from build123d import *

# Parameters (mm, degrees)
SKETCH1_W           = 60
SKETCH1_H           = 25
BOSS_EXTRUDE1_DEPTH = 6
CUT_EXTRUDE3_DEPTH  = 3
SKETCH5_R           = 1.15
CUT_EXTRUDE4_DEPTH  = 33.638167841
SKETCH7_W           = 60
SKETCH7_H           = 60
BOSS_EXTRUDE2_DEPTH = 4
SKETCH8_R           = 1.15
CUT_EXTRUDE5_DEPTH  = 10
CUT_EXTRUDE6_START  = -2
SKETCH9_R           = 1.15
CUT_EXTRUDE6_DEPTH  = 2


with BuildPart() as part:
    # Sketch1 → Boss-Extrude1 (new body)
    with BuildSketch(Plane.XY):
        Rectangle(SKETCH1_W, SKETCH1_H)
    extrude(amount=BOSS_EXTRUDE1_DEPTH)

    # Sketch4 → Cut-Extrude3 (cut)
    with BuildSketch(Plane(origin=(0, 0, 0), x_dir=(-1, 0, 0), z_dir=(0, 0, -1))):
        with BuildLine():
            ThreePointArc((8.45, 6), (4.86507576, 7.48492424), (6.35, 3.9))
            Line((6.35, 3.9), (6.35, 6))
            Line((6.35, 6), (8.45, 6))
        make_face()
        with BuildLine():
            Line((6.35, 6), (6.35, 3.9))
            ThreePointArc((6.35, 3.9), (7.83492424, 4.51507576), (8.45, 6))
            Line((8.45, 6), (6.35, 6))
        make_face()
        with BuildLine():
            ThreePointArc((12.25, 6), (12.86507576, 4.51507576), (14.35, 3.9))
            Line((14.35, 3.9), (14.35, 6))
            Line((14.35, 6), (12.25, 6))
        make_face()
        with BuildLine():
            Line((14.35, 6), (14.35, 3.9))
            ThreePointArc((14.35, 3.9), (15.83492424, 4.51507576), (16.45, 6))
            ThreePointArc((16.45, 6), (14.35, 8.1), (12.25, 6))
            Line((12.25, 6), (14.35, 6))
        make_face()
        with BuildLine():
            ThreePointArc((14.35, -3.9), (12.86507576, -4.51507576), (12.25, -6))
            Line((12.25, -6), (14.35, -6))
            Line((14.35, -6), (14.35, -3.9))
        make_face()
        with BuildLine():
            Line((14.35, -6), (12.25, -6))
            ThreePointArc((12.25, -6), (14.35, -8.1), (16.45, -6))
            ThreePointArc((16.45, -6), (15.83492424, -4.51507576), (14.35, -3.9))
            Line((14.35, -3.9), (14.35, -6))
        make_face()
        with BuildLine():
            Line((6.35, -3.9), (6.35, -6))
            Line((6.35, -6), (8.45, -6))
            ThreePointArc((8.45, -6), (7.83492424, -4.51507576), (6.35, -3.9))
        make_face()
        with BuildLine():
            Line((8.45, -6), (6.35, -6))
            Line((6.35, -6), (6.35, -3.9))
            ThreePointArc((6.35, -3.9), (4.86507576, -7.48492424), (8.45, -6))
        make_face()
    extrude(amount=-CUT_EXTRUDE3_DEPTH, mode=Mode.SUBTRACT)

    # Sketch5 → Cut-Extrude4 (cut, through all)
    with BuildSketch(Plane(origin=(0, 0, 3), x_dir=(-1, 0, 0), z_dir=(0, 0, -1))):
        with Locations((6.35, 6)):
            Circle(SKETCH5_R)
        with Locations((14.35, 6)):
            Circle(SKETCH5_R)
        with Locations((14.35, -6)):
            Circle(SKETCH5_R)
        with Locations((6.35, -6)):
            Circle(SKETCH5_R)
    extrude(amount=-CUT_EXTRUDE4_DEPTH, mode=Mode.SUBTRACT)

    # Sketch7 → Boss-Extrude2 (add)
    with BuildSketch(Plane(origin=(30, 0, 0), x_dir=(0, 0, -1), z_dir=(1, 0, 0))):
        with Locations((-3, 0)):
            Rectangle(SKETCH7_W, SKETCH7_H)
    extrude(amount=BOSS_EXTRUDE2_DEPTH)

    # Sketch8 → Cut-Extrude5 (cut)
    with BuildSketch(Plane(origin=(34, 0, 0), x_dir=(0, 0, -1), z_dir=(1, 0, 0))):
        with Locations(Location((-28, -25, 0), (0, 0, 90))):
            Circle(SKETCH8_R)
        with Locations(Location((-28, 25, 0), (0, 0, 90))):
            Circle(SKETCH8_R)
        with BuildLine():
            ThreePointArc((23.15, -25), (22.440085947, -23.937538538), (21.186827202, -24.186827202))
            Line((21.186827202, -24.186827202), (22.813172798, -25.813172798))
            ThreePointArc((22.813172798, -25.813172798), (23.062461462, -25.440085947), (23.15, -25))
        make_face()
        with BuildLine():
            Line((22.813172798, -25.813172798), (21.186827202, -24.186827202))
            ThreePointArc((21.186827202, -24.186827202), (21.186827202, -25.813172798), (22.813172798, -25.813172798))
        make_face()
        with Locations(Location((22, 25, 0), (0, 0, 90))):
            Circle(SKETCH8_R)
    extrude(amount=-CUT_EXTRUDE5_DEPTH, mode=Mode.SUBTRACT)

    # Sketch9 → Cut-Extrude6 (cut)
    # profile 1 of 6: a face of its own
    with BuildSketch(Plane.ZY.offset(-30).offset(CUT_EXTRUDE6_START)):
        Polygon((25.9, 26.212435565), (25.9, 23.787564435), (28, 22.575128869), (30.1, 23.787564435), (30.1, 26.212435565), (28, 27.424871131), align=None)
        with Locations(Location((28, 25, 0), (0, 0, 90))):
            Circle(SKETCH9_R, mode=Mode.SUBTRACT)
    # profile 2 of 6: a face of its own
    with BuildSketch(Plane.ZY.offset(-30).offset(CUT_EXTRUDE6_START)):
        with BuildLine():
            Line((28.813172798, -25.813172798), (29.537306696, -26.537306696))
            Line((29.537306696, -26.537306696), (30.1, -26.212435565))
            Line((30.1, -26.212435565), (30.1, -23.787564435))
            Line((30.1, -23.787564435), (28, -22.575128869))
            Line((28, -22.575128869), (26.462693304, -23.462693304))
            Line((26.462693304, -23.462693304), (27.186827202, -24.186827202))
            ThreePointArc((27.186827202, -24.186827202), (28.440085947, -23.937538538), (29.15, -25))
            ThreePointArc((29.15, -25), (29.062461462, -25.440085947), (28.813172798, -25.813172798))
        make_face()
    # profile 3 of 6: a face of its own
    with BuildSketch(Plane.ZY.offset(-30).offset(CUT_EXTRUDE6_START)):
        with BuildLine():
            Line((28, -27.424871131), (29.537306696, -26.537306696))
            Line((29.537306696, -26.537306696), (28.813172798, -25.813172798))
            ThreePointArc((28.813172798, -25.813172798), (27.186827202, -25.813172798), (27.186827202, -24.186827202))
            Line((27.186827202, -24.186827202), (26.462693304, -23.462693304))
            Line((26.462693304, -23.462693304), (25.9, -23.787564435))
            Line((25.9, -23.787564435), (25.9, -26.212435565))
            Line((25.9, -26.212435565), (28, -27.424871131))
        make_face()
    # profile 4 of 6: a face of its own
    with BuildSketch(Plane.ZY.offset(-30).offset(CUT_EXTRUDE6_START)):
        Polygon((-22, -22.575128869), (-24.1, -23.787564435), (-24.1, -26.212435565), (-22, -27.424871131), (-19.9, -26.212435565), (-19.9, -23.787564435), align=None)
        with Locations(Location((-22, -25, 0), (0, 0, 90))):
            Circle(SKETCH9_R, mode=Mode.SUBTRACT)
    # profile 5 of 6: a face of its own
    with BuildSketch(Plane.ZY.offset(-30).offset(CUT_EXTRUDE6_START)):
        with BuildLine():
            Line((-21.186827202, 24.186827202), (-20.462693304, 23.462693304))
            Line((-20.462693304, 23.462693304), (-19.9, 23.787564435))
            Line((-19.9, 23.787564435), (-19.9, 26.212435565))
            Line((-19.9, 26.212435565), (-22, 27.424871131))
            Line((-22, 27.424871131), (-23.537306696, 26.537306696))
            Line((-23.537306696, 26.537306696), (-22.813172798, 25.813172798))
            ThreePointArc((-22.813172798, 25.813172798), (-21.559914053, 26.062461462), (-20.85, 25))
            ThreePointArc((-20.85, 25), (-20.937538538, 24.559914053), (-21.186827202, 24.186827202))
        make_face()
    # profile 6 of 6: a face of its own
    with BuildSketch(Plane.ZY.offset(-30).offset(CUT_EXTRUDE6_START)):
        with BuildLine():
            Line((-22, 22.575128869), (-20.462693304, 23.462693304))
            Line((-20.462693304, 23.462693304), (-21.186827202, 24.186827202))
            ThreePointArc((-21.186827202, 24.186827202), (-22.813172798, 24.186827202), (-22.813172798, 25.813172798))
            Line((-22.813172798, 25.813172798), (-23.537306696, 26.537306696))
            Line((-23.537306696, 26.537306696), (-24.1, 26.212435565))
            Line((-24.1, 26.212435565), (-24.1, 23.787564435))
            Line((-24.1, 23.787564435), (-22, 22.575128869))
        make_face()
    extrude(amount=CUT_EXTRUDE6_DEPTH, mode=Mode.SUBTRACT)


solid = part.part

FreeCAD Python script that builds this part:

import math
import FreeCAD as App
import Part
import Sketcher
from FreeCAD import Vector
Q = App.Units.Quantity

doc = App.newDocument("Part")
body = doc.addObject("PartDesign::Body", "Body")

# Sketch on XY plane
sketch1 = body.newObject("Sketcher::SketchObject", "Sketch")
sketch1.AttachmentSupport = (doc.getObject("XY_Plane"), [""])
sketch1.MapMode = "FlatFace"
sketch1.addGeometry([
    Part.LineSegment(Vector(-30, 12, 0), Vector(-30, -12, 0)),
    Part.LineSegment(Vector(-30, -12, 0), Vector(30, -12, 0)),
    Part.LineSegment(Vector(30, -12, 0), Vector(30, 12, 0)),
    Part.LineSegment(Vector(30, 12, 0), Vector(-30, 12, 0)),
], False)
sketch1.addConstraint([
    Sketcher.Constraint("Coincident", 0, 2, 1, 1),
    Sketcher.Constraint("Coincident", 1, 2, 2, 1),
    Sketcher.Constraint("Coincident", 2, 2, 3, 1),
    Sketcher.Constraint("Coincident", 3, 2, 0, 1),
    Sketcher.Constraint("Vertical", 0),
    Sketcher.Constraint("Horizontal", 1),
    Sketcher.Constraint("Vertical", 2),
    Sketcher.Constraint("Horizontal", 3),
    Sketcher.Constraint("Symmetric", 0, 2, 2, 2, -1, 1),
    Sketcher.Constraint("DistanceX", 1, 1, 1, 2, Q("60 mm")),
    Sketcher.Constraint("DistanceY", 0, 2, 0, 1, Q("25 mm")),
])
pad1 = body.newObject("PartDesign::Pad", "Pad")
pad1.Profile = sketch1
pad1.Length = 6

# Sketch on XY plane
sketch2 = body.newObject("Sketcher::SketchObject", "Sketch001")
sketch2.AttachmentSupport = (doc.getObject("XY_Plane"), [""])
sketch2.MapMode = "FlatFace"
sketch2.addGeometry([
    Part.ArcOfCircle(Part.Circle(Vector(-6.3, 6, 0), Vector(0, 0, 1), 2.1), math.radians(-90), math.radians(180)),  # 0
    Part.ArcOfCircle(Part.Circle(Vector(-6.3, 6, 0), Vector(0, 0, 1), 2.1), math.radians(-180), math.radians(-90)),  # 1
    Part.ArcOfCircle(Part.Circle(Vector(-14.4, 6, 0), Vector(0, 0, 1), 2.1), math.radians(-90), math.radians(0)),  # 2
    Part.ArcOfCircle(Part.Circle(Vector(-14.3, 6, 0), Vector(0, 0, 1), 2.1), math.radians(-180), math.radians(-90)),  # 3
    Part.ArcOfCircle(Part.Circle(Vector(-14.3, 6, 0), Vector(0, 0, 1), 2.1), math.radians(0), math.radians(180)),  # 4
    Part.ArcOfCircle(Part.Circle(Vector(-14.4, -6, 0), Vector(0, 0, 1), 2.1), math.radians(0), math.radians(90)),  # 5
    Part.ArcOfCircle(Part.Circle(Vector(-14.3, -6, 0), Vector(0, 0, 1), 2.1), math.radians(180), math.radians(360)),  # 6
    Part.ArcOfCircle(Part.Circle(Vector(-14.3, -6, 0), Vector(0, 0, 1), 2.1), math.radians(90), math.radians(180)),  # 7
    Part.ArcOfCircle(Part.Circle(Vector(-6.3, -6, 0), Vector(0, 0, 1), 2.1), math.radians(90), math.radians(180)),  # 8
    Part.ArcOfCircle(Part.Circle(Vector(-6.3, -6, 0), Vector(0, 0, 1), 2.1), math.radians(180), math.radians(450)),  # 9
], False)
sketch2.addConstraint([
    Sketcher.Constraint("Tangent", 0, 1, 1, 2),
    Sketcher.Constraint("Coincident", 1, 1, 0, 2),
    Sketcher.Constraint("Tangent", 2, 1, 3, 2),
    Sketcher.Constraint("Tangent", 3, 1, 4, 2),
    Sketcher.Constraint("Tangent", 4, 1, 2, 2),
    Sketcher.Constraint("Tangent", 5, 1, 6, 2),
    Sketcher.Constraint("Tangent", 6, 1, 7, 2),
    Sketcher.Constraint("Tangent", 7, 1, 5, 2),
    Sketcher.Constraint("Tangent", 8, 1, 9, 2),
    Sketcher.Constraint("Coincident", 9, 1, 8, 2),
    Sketcher.Constraint("Equal", 1, 2),
    Sketcher.Constraint("Equal", 4, 5),
    Sketcher.Constraint("Equal", 7, 8),
    Sketcher.Constraint("Symmetric", 2, 3, 5, 3, -1),
    Sketcher.Constraint("Symmetric", 0, 3, 8, 3, -1),
    Sketcher.Constraint("Horizontal", 1, 3, 2, 3),
    Sketcher.Constraint("Horizontal", 4, 3, 1, 1),
    Sketcher.Constraint("Horizontal", 1, 1, 3, 1),
    Sketcher.Constraint("Horizontal", 3, 1, 4, 1),
    Sketcher.Constraint("Horizontal", 9, 3, 5, 1),
    Sketcher.Constraint("Horizontal", 5, 1, 6, 1),
    Sketcher.Constraint("Horizontal", 6, 1, 9, 1),
    Sketcher.Constraint("Vertical", 9, 3, 0, 1),
    Sketcher.Constraint("Vertical", 7, 3, 2, 1),
    Sketcher.Constraint("Vertical", 2, 1, 7, 1),
    Sketcher.Constraint("Vertical", 0, 1, 8, 1),
    Sketcher.Constraint("Radius", 0, Q("2.1 mm")),
    Sketcher.Constraint("DistanceY", -1, 1, 0, 3, Q("6 mm")),
    Sketcher.Constraint("DistanceX", 2, 3, 0, 3, Q("8 mm")),
    Sketcher.Constraint("DistanceX", 0, 3, -1, 1, Q("6.35 mm")),
])
pocket1 = body.newObject("PartDesign::Pocket", "Pocket")
pocket1.Profile = sketch2
pocket1.Length = 3
pocket1.Reversed = True

# Sketch on XY plane
sketch3 = body.newObject("Sketcher::SketchObject", "Sketch002")
sketch3.AttachmentSupport = (doc.getObject("XY_Plane"), [""])
sketch3.MapMode = "FlatFace"
sketch3.AttachmentOffset = App.Placement(Vector(0, 0, 3), App.Rotation())
sketch3.addGeometry([
    Part.Circle(Vector(-6.3, 6, 0), Vector(0, 0, 1), 1.1),
    Part.Circle(Vector(-14.3, 6, 0), Vector(0, 0, 1), 1.1),
    Part.Circle(Vector(-14.3, -6, 0), Vector(0, 0, 1), 1.1),
    Part.Circle(Vector(-6.3, -6, 0), Vector(0, 0, 1), 1.1),
], False)
sketch3.addConstraint([
    Sketcher.Constraint("Equal", 0, 1),
    Sketcher.Constraint("Equal", 1, 2),
    Sketcher.Constraint("Equal", 2, 3),
    Sketcher.Constraint("Symmetric", 1, 3, 2, 3, -1),
    Sketcher.Constraint("Symmetric", 0, 3, 3, 3, -1),
    Sketcher.Constraint("Horizontal", 0, 3, 1, 3),
    Sketcher.Constraint("Diameter", 0, Q("2.3 mm")),
    Sketcher.Constraint("DistanceY", -1, 1, 0, 3, Q("6 mm")),
    Sketcher.Constraint("DistanceX", 1, 3, 0, 3, Q("8 mm")),
    Sketcher.Constraint("DistanceX", 0, 3, -1, 1, Q("6.35 mm")),
])
pocket2 = body.newObject("PartDesign::Pocket", "Pocket001")
pocket2.Profile = sketch3
pocket2.Type = "ThroughAll"
pocket2.Reversed = True

# Sketch on YZ plane
sketch4 = body.newObject("Sketcher::SketchObject", "Sketch003")
sketch4.AttachmentSupport = (doc.getObject("YZ_Plane"), [""])
sketch4.MapMode = "FlatFace"
sketch4.AttachmentOffset = App.Placement(Vector(0, 0, 30), App.Rotation())
sketch4.addGeometry([
    Part.LineSegment(Vector(30, 33, 0), Vector(-30, 33, 0)),
    Part.LineSegment(Vector(-30, 33, 0), Vector(-30, -27, 0)),
    Part.LineSegment(Vector(-30, -27, 0), Vector(30, -27, 0)),
    Part.LineSegment(Vector(30, -27, 0), Vector(30, 33, 0)),
], False)
sketch4.addConstraint([
    Sketcher.Constraint("Coincident", 0, 2, 1, 1),
    Sketcher.Constraint("Coincident", 1, 2, 2, 1),
    Sketcher.Constraint("Coincident", 2, 2, 3, 1),
    Sketcher.Constraint("Coincident", 3, 2, 0, 1),
    Sketcher.Constraint("Horizontal", 0),
    Sketcher.Constraint("Vertical", 1),
    Sketcher.Constraint("Horizontal", 2),
    Sketcher.Constraint("Vertical", 3),
    Sketcher.Constraint("Equal", 2, 1),
    Sketcher.Constraint("DistanceX", 0, 2, 0, 1, Q("60 mm")),
    Sketcher.Constraint("DistanceX", 0, 2, -1, 1, Q("30 mm")),
    Sketcher.Constraint("DistanceY", -1, 1, 0, 2, Q("33 mm")),
])
pad2 = body.newObject("PartDesign::Pad", "Pad001")
pad2.Profile = sketch4
pad2.Length = 4

# Sketch on YZ plane
sketch5 = body.newObject("Sketcher::SketchObject", "Sketch004")
sketch5.AttachmentSupport = (doc.getObject("YZ_Plane"), [""])
sketch5.MapMode = "FlatFace"
sketch5.AttachmentOffset = App.Placement(Vector(0, 0, 34), App.Rotation())
sketch5.addGeometry([
    Part.Circle(Vector(-25, 28, 0), Vector(0, 0, 1), 1.1),  # 0
    Part.Circle(Vector(25, 28, 0), Vector(0, 0, 1), 1.1),  # 1
    Part.ArcOfCircle(Part.Circle(Vector(-25, -22, 0), Vector(0, 0, 1), 1.1), math.radians(-90), math.radians(45)),  # 2
    Part.ArcOfCircle(Part.Circle(Vector(-25, -22, 0), Vector(0, 0, 1), 1.1), math.radians(45), math.radians(225)),  # 3
    Part.ArcOfCircle(Part.Circle(Vector(-25, -22, 0), Vector(0, 0, 1), 1.2), math.radians(-135), math.radians(-90)),  # 4
    Part.Circle(Vector(25, -22, 0), Vector(0, 0, 1), 1.1),  # 5
], False)
sketch5.addConstraint([
    Sketcher.Constraint("Tangent", 2, 2, 3, 1),
    Sketcher.Constraint("Tangent", 3, 2, 4, 1),
    Sketcher.Constraint("Tangent", 4, 2, 2, 1),
    Sketcher.Constraint("Equal", 0, 1),
    Sketcher.Constraint("Equal", 1, 2),
    Sketcher.Constraint("Equal", 4, 5),
    Sketcher.Constraint("Symmetric", 0, 3, 1, 3, -2),
    Sketcher.Constraint("Symmetric", 2, 3, 5, 3, -2),
    Sketcher.Constraint("Vertical", 0, 3, 2, 3),
    Sketcher.Constraint("Vertical", 3, 3, 4, 2),
    Sketcher.Constraint("Diameter", 0, Q("2.3 mm")),
    Sketcher.Constraint("DistanceX", 0, 3, -1, 1, Q("25 mm")),
    Sketcher.Constraint("DistanceY", -1, 1, 0, 3, Q("28 mm")),
    Sketcher.Constraint("DistanceY", 2, 3, -1, 1, Q("22 mm")),
    Sketcher.Constraint("DistanceX", 2, 2, -1, 1, Q("24.186827 mm")),
    Sketcher.Constraint("DistanceX", 3, 2, -1, 1, Q("25.813173 mm")),
])
pocket3 = body.newObject("PartDesign::Pocket", "Pocket002")
pocket3.Profile = sketch5
pocket3.Length = 10

# Sketch on YZ plane
sketch6 = body.newObject("Sketcher::SketchObject", "Sketch005")
sketch6.AttachmentSupport = (doc.getObject("YZ_Plane"), [""])
sketch6.MapMode = "FlatFace"
sketch6.AttachmentOffset = App.Placement(Vector(0, 0, 32), App.Rotation())
sketch6.addGeometry([
    Part.LineSegment(Vector(26.2, 25.9, 0), Vector(23.8, 25.9, 0)),  # 0
    Part.LineSegment(Vector(23.8, 25.9, 0), Vector(22.6, 28, 0)),  # 1
    Part.LineSegment(Vector(22.6, 28, 0), Vector(23.8, 30.1, 0)),  # 2
    Part.LineSegment(Vector(23.8, 30.1, 0), Vector(26.2, 30.1, 0)),  # 3
    Part.LineSegment(Vector(26.2, 30.1, 0), Vector(27.4, 28, 0)),  # 4
    Part.LineSegment(Vector(27.4, 28, 0), Vector(26.2, 25.9, 0)),  # 5
    Part.Circle(Vector(25, 28, 0), Vector(0, 0, 1), 1.1),  # 6
    Part.LineSegment(Vector(-26.5, 29.5, 0), Vector(-26.2, 30.1, 0)),  # 7
    Part.LineSegment(Vector(-26.2, 30.1, 0), Vector(-23.8, 30.1, 0)),  # 8
    Part.LineSegment(Vector(-23.8, 30.1, 0), Vector(-22.6, 28, 0)),  # 9
    Part.LineSegment(Vector(-22.6, 28, 0), Vector(-23.5, 26.5, 0)),  # 10
    Part.LineSegment(Vector(-23.5, 26.5, 0), Vector(-23.8, 25.9, 0)),  # 11
    Part.LineSegment(Vector(-23.8, 25.9, 0), Vector(-26.2, 25.9, 0)),  # 12
    Part.LineSegment(Vector(-26.2, 25.9, 0), Vector(-27.4, 28, 0)),  # 13
    Part.LineSegment(Vector(-27.4, 28, 0), Vector(-26.5, 29.5, 0)),  # 14
    Part.ArcOfCircle(Part.Circle(Vector(-25, 28, 0), Vector(0, 0, 1), 1.1), math.radians(-45), math.radians(90)),  # 15
    Part.ArcOfCircle(Part.Circle(Vector(-25, 28, 0), Vector(0, 0, 1), 1.2), math.radians(90), math.radians(135)),  # 16
    Part.ArcOfCircle(Part.Circle(Vector(-25, 28, 0), Vector(0, 0, 1), 1.1), math.radians(135), math.radians(315)),  # 17
    Part.LineSegment(Vector(-22.6, -22, 0), Vector(-23.8, -24.1, 0)),  # 18
    Part.LineSegment(Vector(-23.8, -24.1, 0), Vector(-26.2, -24.1, 0)),  # 19
    Part.LineSegment(Vector(-26.2, -24.1, 0), Vector(-27.4, -22, 0)),  # 20
    Part.LineSegment(Vector(-27.4, -22, 0), Vector(-26.2, -19.9, 0)),  # 21
    Part.LineSegment(Vector(-26.2, -19.9, 0), Vector(-23.8, -19.9, 0)),  # 22
    Part.LineSegment(Vector(-23.8, -19.9, 0), Vector(-22.6, -22, 0)),  # 23
    Part.Circle(Vector(-25, -22, 0), Vector(0, 0, 1), 1.1),  # 24
    Part.LineSegment(Vector(23.5, -20.5, 0), Vector(23.8, -19.9, 0)),  # 25
    Part.LineSegment(Vector(23.8, -19.9, 0), Vector(26.2, -19.9, 0)),  # 26
    Part.LineSegment(Vector(26.2, -19.9, 0), Vector(27.4, -22, 0)),  # 27
    Part.LineSegment(Vector(27.4, -22, 0), Vector(26.5, -23.5, 0)),  # 28
    Part.LineSegment(Vector(26.5, -23.5, 0), Vector(26.2, -24.1, 0)),  # 29
    Part.LineSegment(Vector(26.2, -24.1, 0), Vector(23.8, -24.1, 0)),  # 30
    Part.LineSegment(Vector(23.8, -24.1, 0), Vector(22.6, -22, 0)),  # 31
    Part.LineSegment(Vector(22.6, -22, 0), Vector(23.5, -20.5, 0)),  # 32
    Part.ArcOfCircle(Part.Circle(Vector(25, -22, 0), Vector(0, 0, 1), 1.1), math.radians(-45), math.radians(90)),  # 33
    Part.ArcOfCircle(Part.Circle(Vector(25, -22, 0), Vector(0, 0, 1), 1.2), math.radians(90), math.radians(135)),  # 34
    Part.ArcOfCircle(Part.Circle(Vector(25, -22, 0), Vector(0, 0, 1), 1.1), math.radians(135), math.radians(315)),  # 35
], False)
sketch6.addConstraint([
    Sketcher.Constraint("Coincident", 0, 2, 1, 1),
    Sketcher.Constraint("Coincident", 1, 2, 2, 1),
    Sketcher.Constraint("Coincident", 2, 2, 3, 1),
    Sketcher.Constraint("Coincident", 3, 2, 4, 1),
    Sketcher.Constraint("Coincident", 4, 2, 5, 1),
    Sketcher.Constraint("Coincident", 5, 2, 0, 1),
    Sketcher.Constraint("Coincident", 7, 2, 8, 1),
    Sketcher.Constraint("Coincident", 8, 2, 9, 1),
    Sketcher.Constraint("Coincident", 9, 2, 10, 1),
    Sketcher.Constraint("Coincident", 10, 2, 11, 1),
    Sketcher.Constraint("Coincident", 11, 2, 12, 1),
    Sketcher.Constraint("Coincident", 12, 2, 13, 1),
    Sketcher.Constraint("Coincident", 13, 2, 14, 1),
    Sketcher.Constraint("Coincident", 14, 2, 7, 1),
    Sketcher.Constraint("Tangent", 15, 2, 16, 1),
    Sketcher.Constraint("Tangent", 16, 2, 17, 1),
    Sketcher.Constraint("Tangent", 17, 2, 15, 1),
    Sketcher.Constraint("Coincident", 18, 2, 19, 1),
    Sketcher.Constraint("Coincident", 19, 2, 20, 1),
    Sketcher.Constraint("Coincident", 20, 2, 21, 1),
    Sketcher.Constraint("Coincident", 21, 2, 22, 1),
    Sketcher.Constraint("Coincident", 22, 2, 23, 1),
    Sketcher.Constraint("Coincident", 23, 2, 18, 1),
    Sketcher.Constraint("Coincident", 25, 2, 26, 1),
    Sketcher.Constraint("Coincident", 26, 2, 27, 1),
    Sketcher.Constraint("Coincident", 27, 2, 28, 1),
    Sketcher.Constraint("Coincident", 28, 2, 29, 1),
    Sketcher.Constraint("Coincident", 29, 2, 30, 1),
    Sketcher.Constraint("Coincident", 30, 2, 31, 1),
    Sketcher.Constraint("Coincident", 31, 2, 32, 1),
    Sketcher.Constraint("Coincident", 32, 2, 25, 1),
    Sketcher.Constraint("Tangent", 33, 2, 34, 1),
    Sketcher.Constraint("Tangent", 34, 2, 35, 1),
    Sketcher.Constraint("Tangent", 35, 2, 33, 1),
    Sketcher.Constraint("Horizontal", 0),
    Sketcher.Constraint("Horizontal", 3),
    Sketcher.Constraint("Horizontal", 8),
    Sketcher.Constraint("Horizontal", 12),
    Sketcher.Constraint("Horizontal", 19),
    Sketcher.Constraint("Horizontal", 22),
    Sketcher.Constraint("Horizontal", 26),
    Sketcher.Constraint("Horizontal", 30),
    Sketcher.Constraint("Equal", 6, 15),
    Sketcher.Constraint("Equal", 17, 24),
    Sketcher.Constraint("Equal", 24, 33),
    Sketcher.Constraint("Symmetric", 6, 3, 15, 3, -2),
    Sketcher.Constraint("Symmetric", 24, 3, 33, 3, -2),
    Sketcher.Constraint("Symmetric", 3, 2, 7, 2, -2),
    Sketcher.Constraint("Symmetric", 1, 2, 9, 2, -2),
    Sketcher.Constraint("Symmetric", 0, 2, 11, 2, -2),
    Sketcher.Constraint("Symmetric", 4, 2, 13, 2, -2),
    Sketcher.Constraint("Symmetric", 22, 2, 25, 2, -2),
    Sketcher.Constraint("Symmetric", 20, 2, 27, 2, -2),
    Sketcher.Constraint("Symmetric", 19, 2, 29, 2, -2),
    Sketcher.Constraint("Symmetric", 23, 2, 31, 2, -2),
    Sketcher.Constraint("Parallel", 1, 4),
    Sketcher.Constraint("Parallel", 2, 5),
    Sketcher.Constraint("Parallel", 5, 7),
    Sketcher.Constraint("Parallel", 4, 9),
    Sketcher.Constraint("Parallel", 7, 10),
    Sketcher.Constraint("Parallel", 10, 11),
    Sketcher.Constraint("Parallel", 9, 13),
    Sketcher.Constraint("Parallel", 14, 18),
    Sketcher.Constraint("Parallel", 13, 20),
    Sketcher.Constraint("Parallel", 18, 21),
    Sketcher.Constraint("Parallel", 20, 23),
    Sketcher.Constraint("Parallel", 21, 25),
    Sketcher.Constraint("Parallel", 23, 27),
    Sketcher.Constraint("Parallel", 25, 28),
    Sketcher.Constraint("Parallel", 27, 31),
    Sketcher.Constraint("Horizontal", 17, 3, 1, 2),
    Sketcher.Constraint("Horizontal", 1, 2, 4, 2),
    Sketcher.Constraint("Horizontal", 35, 3, 20, 2),
    Sketcher.Constraint("Horizontal", 20, 2, 23, 2),
    Sketcher.Constraint("Vertical", 17, 3, 24, 3),
    Sketcher.Constraint("Vertical", 0, 2, 2, 2),
    Sketcher.Constraint("Vertical", 24, 3, 15, 2),
    Sketcher.Constraint("Vertical", 11, 2, 18, 2),
    Sketcher.Constraint("Vertical", 12, 2, 19, 2),
    Sketcher.Constraint("Vertical", 13, 2, 20, 2),
    Sketcher.Constraint("Vertical", 19, 2, 21, 2),
    Sketcher.Constraint("Vertical", 35, 3, 33, 2),
    Sketcher.Constraint("Equal", 7, 11),
    Sketcher.Constraint("Equal", 11, 25),
    Sketcher.Constraint("Equal", 14, 28),
    Sketcher.Constraint("Diameter", 6, Q("2.3 mm")),
    Sketcher.Constraint("Angle", 1, Q("120 deg")),
    Sketcher.Constraint("DistanceX", -1, 1, 6, 3, Q("25 mm")),
    Sketcher.Constraint("DistanceY", -1, 1, 6, 3, Q("28 mm")),
    Sketcher.Constraint("DistanceY", 24, 3, -1, 1, Q("22 mm")),
    Sketcher.Constraint("DistanceX", 7, 2, 2, 2, Q("50 mm")),
    Sketcher.Constraint("DistanceY", -1, 1, 0, 2, Q("25.9 mm")),
    Sketcher.Constraint("DistanceX", 0, 2, 0, 1, Q("2.424871 mm")),
    Sketcher.Constraint("Distance", 10, Q("1.775129 mm")),
    Sketcher.Constraint("DistanceX", 16, 2, -1, 1, Q("25.813173 mm")),
    Sketcher.Constraint("DistanceX", 17, 2, -1, 1, Q("24.186827 mm")),
    Sketcher.Constraint("DistanceX", -1, 1, 34, 2, Q("24.186827 mm")),
    Sketcher.Constraint("DistanceX", -1, 1, 35, 2, Q("25.813173 mm")),
])
pocket4 = body.newObject("PartDesign::Pocket", "Pocket003")
pocket4.Profile = sketch6
pocket4.Length = 2

doc.recompute()
